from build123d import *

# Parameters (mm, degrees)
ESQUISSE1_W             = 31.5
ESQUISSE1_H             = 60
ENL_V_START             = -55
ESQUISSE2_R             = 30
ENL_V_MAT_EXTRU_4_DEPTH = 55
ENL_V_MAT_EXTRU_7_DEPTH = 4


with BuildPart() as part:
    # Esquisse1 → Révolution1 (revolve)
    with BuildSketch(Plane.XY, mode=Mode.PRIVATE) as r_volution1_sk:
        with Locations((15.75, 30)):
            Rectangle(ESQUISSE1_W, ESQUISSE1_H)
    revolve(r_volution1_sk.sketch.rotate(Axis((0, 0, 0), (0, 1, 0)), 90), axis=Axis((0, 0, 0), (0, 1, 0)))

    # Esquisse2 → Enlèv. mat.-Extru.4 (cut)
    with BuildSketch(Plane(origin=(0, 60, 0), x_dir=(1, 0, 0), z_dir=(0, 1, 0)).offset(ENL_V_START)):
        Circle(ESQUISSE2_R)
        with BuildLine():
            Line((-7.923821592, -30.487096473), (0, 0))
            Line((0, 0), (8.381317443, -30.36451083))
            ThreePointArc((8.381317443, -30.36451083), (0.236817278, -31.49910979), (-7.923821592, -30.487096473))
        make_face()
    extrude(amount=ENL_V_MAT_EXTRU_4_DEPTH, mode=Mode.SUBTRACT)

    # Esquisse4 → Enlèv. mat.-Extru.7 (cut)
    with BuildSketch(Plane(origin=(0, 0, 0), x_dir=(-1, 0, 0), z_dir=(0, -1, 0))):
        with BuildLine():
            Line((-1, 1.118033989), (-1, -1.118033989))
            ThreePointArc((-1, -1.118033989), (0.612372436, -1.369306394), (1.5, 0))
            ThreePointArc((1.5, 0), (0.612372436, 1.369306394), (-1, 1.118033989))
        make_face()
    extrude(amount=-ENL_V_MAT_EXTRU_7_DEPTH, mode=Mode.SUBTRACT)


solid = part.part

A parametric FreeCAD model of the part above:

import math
import FreeCAD as App
import Part
import Sketcher


def add_polygon(sketch, points):
    """Adds a closed chain of lines whose ends are joined by coincident constraints."""
    first, n = sketch.GeometryCount, len(points)
    for a, b in zip(points, points[1:] + points[:1]):
        sketch.addGeometry(Part.LineSegment(App.Vector(*a, 0), App.Vector(*b, 0)), False)
    for i in range(n):
        sketch.addConstraint(Sketcher.Constraint("Coincident", first + i, 2, first + (i + 1) % n, 1))

doc = App.newDocument("Part")
body = doc.addObject("PartDesign::Body", "Body")

# Sketch on XY plane
sketch1 = body.newObject("Sketcher::SketchObject", "Sketch")
sketch1.AttachmentSupport = (doc.getObject("XY_Plane"), [""])
sketch1.MapMode = "FlatFace"
add_polygon(sketch1, [(0, 60), (0, 0), (32, 0), (32, 60)])  # lines 0-3
sketch1.addConstraint(Sketcher.Constraint("Vertical", 0))
sketch1.addConstraint(Sketcher.Constraint("Horizontal", 1))
sketch1.addConstraint(Sketcher.Constraint("Vertical", 2))
sketch1.addConstraint(Sketcher.Constraint("Horizontal", 3))
sketch1.addConstraint(Sketcher.Constraint("Coincident", 0, 2, -1, 1))
sketch1.addConstraint(Sketcher.Constraint("DistanceY", 0, 2, 0, 1, 60.0))
sketch1.addConstraint(Sketcher.Constraint("DistanceX", 1, 1, 1, 2, 31.5))
revolution = body.newObject("PartDesign::Revolution", "Revolution")
revolution.Profile = sketch1
revolution.ReferenceAxis = (sketch1, ["V_Axis"])
revolution.Angle = 360

# Sketch on XZ plane
sketch2 = body.newObject("Sketcher::SketchObject", "Sketch001")
sketch2.AttachmentSupport = (doc.getObject("XZ_Plane"), [""])
sketch2.MapMode = "FlatFace"
sketch2.AttachmentOffset = App.Placement(App.Vector(0, 0, -5), App.Rotation())
sketch2.addGeometry(Part.ArcOfCircle(Part.Circle(App.Vector(0, 0, 0), App.Vector(0, 0, 1), 30), math.radians(105), math.radians(435)), False)
sketch2.addGeometry(Part.LineSegment(App.Vector(-7.5, 29, 0), App.Vector(-7.9, 30.5, 0)), False)
sketch2.addGeometry(Part.ArcOfCircle(Part.Circle(App.Vector(0, 0, 0), App.Vector(0, 0, 1), 31.5), math.radians(75), math.radians(105)), False)
sketch2.addGeometry(Part.LineSegment(App.Vector(8.4, 30.4, 0), App.Vector(8, 28.9, 0)), False)
sketch2.addConstraint(Sketcher.Constraint("Coincident", 0, 1, 1, 1))
sketch2.addConstraint(Sketcher.Constraint("Coincident", 1, 2, 2, 2))
sketch2.addConstraint(Sketcher.Constraint("Coincident", 2, 1, 3, 1))
sketch2.addConstraint(Sketcher.Constraint("Coincident", 3, 2, 0, 2))
sketch2.addConstraint(Sketcher.Constraint("Coincident", 0, 3, -1, 1))
sketch2.addConstraint(Sketcher.Constraint("Coincident", 2, 3, -1, 1))
sketch2.addConstraint(Sketcher.Constraint("Radius", 0, 30.0))
sketch2.addConstraint(Sketcher.Constraint("Radius", 2, 31.5))
sketch2.addConstraint(Sketcher.Constraint("DistanceY", -1, 1, 0, 1, 29.03533))
sketch2.addConstraint(Sketcher.Constraint("DistanceX", 1, 2, -1, 1, 7.923822))
sketch2.addConstraint(Sketcher.Constraint("DistanceY", -1, 1, 2, 1, 30.364511))
sketch2.addConstraint(Sketcher.Constraint("DistanceY", -1, 1, 3, 2, 28.918582))
pocket1 = body.newObject("PartDesign::Pocket", "Pocket")
pocket1.Profile = sketch2
pocket1.Length = 55

# Sketch on XZ plane
sketch3 = body.newObject("Sketcher::SketchObject", "Sketch002")
sketch3.AttachmentSupport = (doc.getObject("XZ_Plane"), [""])
sketch3.MapMode = "FlatFace"
sketch3.addGeometry(Part.LineSegment(App.Vector(1, -1.1, 0), App.Vector(1, 1.1, 0)), False)
sketch3.addGeometry(Part.ArcOfCircle(Part.Circle(App.Vector(0, 0, 0), App.Vector(0, 0, 1), 1.5), math.radians(48), math.radians(180)), False)
sketch3.addGeometry(Part.ArcOfCircle(Part.Circle(App.Vector(0, 0, 0), App.Vector(0, 0, 1), 1.5), math.radians(180), math.radians(312)), False)
sketch3.addConstraint(Sketcher.Constraint("Coincident", 0, 2, 1, 1))
sketch3.addConstraint(Sketcher.Constraint("Tangent", 1, 2, 2, 1))
sketch3.addConstraint(Sketcher.Constraint("Coincident", 2, 2, 0, 1))
sketch3.addConstraint(Sketcher.Constraint("Vertical", 0))
sketch3.addConstraint(Sketcher.Constraint("Coincident", 1, 3, -1, 1))
sketch3.addConstraint(Sketcher.Constraint("Equal", 1, 2))
sketch3.addConstraint(Sketcher.Constraint("PointOnObject", 1, 2, -1))
sketch3.addConstraint(Sketcher.Constraint("Radius", 1, 1.5))
sketch3.addConstraint(Sketcher.Constraint("DistanceX", -1, 1, 0, 2, 1.0))
pocket2 = body.newObject("PartDesign::Pocket", "Pocket001")
pocket2.Profile = sketch3
pocket2.Length = 4

doc.recompute()
